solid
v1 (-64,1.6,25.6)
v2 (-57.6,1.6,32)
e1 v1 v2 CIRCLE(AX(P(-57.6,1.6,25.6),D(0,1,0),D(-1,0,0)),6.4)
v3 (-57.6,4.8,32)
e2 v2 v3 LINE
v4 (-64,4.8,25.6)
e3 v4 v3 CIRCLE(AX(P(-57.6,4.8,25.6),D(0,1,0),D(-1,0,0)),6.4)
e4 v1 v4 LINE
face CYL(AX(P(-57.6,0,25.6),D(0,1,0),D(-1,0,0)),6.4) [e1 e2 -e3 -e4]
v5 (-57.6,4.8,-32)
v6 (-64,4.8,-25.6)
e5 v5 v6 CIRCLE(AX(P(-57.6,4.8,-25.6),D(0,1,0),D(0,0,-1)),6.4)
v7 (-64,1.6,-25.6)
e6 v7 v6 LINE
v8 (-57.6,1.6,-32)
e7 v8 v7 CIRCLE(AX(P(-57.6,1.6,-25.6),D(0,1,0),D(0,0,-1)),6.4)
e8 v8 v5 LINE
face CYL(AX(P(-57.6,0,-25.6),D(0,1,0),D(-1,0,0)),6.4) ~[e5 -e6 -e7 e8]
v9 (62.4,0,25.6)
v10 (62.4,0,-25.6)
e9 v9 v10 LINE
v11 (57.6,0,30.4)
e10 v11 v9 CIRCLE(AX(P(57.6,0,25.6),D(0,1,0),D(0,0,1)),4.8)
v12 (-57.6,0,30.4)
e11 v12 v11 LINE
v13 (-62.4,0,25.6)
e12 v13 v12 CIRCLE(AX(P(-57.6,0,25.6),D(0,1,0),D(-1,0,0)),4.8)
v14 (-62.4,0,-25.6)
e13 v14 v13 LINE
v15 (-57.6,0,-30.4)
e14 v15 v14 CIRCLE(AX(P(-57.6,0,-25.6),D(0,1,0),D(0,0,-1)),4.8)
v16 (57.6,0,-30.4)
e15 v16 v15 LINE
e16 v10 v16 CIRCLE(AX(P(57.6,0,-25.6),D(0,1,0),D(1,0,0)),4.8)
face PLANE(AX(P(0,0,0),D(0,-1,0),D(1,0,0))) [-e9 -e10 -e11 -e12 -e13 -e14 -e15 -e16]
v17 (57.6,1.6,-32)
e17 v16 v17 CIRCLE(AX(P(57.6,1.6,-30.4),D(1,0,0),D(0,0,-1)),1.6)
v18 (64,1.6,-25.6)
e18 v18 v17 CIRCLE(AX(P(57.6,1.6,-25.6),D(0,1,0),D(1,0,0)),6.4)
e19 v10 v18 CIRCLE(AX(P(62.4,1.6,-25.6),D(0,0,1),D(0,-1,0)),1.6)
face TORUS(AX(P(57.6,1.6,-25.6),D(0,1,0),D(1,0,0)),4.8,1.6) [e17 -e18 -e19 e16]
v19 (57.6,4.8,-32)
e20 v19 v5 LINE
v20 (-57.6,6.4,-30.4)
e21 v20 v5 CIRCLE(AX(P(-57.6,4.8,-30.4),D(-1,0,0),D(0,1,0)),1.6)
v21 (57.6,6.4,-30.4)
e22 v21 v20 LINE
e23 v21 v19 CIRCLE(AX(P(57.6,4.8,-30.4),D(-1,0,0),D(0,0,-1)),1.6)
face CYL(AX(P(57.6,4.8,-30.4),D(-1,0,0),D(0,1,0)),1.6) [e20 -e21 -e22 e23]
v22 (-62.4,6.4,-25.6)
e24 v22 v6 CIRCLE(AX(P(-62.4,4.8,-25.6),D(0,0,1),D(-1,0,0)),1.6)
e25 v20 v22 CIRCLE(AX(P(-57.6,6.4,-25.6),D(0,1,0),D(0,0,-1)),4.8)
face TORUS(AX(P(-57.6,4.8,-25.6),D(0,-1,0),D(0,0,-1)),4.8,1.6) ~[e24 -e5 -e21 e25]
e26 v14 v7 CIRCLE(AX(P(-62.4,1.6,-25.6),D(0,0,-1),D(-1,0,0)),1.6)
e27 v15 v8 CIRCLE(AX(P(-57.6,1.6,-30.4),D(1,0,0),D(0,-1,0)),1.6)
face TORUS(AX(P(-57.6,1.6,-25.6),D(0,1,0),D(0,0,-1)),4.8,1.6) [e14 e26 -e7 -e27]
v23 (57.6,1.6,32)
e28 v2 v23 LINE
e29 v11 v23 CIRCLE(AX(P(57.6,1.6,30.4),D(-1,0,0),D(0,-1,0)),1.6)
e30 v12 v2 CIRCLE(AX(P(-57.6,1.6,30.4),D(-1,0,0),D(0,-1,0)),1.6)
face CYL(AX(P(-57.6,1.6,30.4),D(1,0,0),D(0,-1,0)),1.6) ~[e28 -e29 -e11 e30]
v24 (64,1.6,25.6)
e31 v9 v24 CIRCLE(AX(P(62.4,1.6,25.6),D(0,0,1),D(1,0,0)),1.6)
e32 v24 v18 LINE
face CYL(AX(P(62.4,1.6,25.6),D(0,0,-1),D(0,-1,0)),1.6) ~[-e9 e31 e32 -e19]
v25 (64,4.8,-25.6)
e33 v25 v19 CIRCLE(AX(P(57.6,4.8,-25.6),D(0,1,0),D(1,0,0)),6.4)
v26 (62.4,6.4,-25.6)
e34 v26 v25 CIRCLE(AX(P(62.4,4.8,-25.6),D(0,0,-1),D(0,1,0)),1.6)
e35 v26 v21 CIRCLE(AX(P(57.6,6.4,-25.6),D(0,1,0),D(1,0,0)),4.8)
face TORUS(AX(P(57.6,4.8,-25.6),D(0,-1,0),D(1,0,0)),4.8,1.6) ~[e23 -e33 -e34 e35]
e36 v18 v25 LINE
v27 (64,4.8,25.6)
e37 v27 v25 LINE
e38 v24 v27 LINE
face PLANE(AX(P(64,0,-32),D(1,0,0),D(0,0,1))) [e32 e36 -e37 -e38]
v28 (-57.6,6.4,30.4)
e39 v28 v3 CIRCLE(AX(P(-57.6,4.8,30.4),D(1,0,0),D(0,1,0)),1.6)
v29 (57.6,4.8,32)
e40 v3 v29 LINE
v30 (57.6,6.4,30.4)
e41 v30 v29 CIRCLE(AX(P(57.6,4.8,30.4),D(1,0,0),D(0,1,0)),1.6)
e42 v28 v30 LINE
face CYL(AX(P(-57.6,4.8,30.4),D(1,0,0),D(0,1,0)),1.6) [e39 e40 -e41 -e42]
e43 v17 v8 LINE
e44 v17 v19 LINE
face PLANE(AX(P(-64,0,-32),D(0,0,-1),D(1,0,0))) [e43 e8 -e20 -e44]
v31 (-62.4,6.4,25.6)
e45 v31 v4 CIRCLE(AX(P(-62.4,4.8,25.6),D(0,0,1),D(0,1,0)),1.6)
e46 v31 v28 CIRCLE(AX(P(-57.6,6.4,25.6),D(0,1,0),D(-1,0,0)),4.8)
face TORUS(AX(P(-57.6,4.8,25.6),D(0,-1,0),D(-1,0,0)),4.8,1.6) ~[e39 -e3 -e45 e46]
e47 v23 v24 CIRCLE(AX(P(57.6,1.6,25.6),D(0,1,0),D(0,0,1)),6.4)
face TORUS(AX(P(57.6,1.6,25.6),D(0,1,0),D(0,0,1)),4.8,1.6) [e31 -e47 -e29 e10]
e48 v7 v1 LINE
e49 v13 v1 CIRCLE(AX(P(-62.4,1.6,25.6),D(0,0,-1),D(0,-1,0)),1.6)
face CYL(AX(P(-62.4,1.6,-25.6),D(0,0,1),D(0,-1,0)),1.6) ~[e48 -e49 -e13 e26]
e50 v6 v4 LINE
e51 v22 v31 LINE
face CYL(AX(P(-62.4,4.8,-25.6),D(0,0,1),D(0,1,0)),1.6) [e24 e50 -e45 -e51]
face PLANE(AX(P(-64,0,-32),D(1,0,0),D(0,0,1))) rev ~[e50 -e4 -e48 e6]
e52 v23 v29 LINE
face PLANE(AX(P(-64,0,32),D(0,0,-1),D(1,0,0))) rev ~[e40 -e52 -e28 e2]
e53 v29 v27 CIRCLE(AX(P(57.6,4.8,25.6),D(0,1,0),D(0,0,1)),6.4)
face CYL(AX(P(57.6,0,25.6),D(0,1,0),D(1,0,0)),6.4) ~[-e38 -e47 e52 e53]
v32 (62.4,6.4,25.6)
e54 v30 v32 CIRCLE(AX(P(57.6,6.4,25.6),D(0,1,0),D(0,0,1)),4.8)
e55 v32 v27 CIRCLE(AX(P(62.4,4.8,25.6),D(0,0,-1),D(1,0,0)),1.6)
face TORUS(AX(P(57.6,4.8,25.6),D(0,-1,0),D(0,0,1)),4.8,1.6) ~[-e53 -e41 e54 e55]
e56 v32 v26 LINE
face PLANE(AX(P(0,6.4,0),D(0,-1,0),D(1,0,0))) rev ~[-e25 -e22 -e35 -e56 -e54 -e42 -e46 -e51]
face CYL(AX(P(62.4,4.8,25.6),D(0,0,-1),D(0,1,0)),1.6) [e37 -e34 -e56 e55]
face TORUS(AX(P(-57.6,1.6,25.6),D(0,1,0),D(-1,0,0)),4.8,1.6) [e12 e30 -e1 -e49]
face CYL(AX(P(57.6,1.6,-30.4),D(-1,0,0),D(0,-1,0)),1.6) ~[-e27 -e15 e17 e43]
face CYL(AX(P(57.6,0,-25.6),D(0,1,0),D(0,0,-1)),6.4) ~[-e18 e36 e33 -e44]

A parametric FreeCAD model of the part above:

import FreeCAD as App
import Part
import Sketcher
from FreeCAD import Vector
Q = App.Units.Quantity


def edges_at(feature, points):
    """Names of the edges that pass closest to the given points."""
    edges = feature.Shape.Edges
    near = lambda p: min(range(len(edges)), key=lambda i: edges[i].distToShape(Part.Vertex(*p))[0])
    return sorted({f"Edge{near(p) + 1}" for p in points})


def add_polygon(sketch, points):
    """Adds a closed chain of lines whose ends are joined by coincident constraints."""
    first, n = sketch.GeometryCount, len(points)
    for a, b in zip(points, points[1:] + points[:1]):
        sketch.addGeometry(Part.LineSegment(App.Vector(*a, 0), App.Vector(*b, 0)), False)
    for i in range(n):
        sketch.addConstraint(Sketcher.Constraint("Coincident", first + i, 2, first + (i + 1) % n, 1))

doc = App.newDocument("Part")
params = doc.addObject("Spreadsheet::Sheet", "Params")
for row, (alias, value) in enumerate([
    ("sketch1_width", "128 mm"),
    ("sketch1_height", "64 mm"),
    ("pad1_length", "6.4 mm"),
    ("fillet_radius", "6.4 mm"),
    ("fillet2_radius", "1.6 mm"),
], start=1):
    params.set(f"A{row}", alias)
    params.set(f"B{row}", "=" + value)
    params.setAlias(f"B{row}", alias)

body = doc.addObject("PartDesign::Body", "Body")

# Sketch on XZ plane
sketch1 = body.newObject("Sketcher::SketchObject", "Sketch")
sketch1.AttachmentSupport = (doc.getObject("XZ_Plane"), [""])
sketch1.MapMode = "FlatFace"
add_polygon(sketch1, [(-64, 32), (-64, -32), (64, -32), (64, 32)])  # lines 0-3
sketch1.addConstraint([
    Sketcher.Constraint("Vertical", 0),
    Sketcher.Constraint("Horizontal", 1),
    Sketcher.Constraint("Vertical", 2),
    Sketcher.Constraint("Horizontal", 3),
    Sketcher.Constraint("Symmetric", 0, 2, 2, 2, -1, 1),
    Sketcher.Constraint("DistanceX", 1, 1, 1, 2, Q("128 mm")),
    Sketcher.Constraint("DistanceY", 0, 2, 0, 1, Q("64 mm")),
])
sketch1.setExpression("Constraints[9]", "Params.sketch1_width")
sketch1.setExpression("Constraints[10]", "Params.sketch1_height")
pad1 = body.newObject("PartDesign::Pad", "Pad")
pad1.Profile = sketch1
pad1.setExpression("Length", "Params.pad1_length")
pad1.Reversed = True
doc.recompute()

fillet = body.newObject("PartDesign::Fillet", "Fillet")
fillet.Base = (pad1, edges_at(pad1, [
    (64, 3.2, 32),
    (64, 3.2, -32),
    (-64, 3.2, 32),
    (-64, 3.2, -32),
]))
fillet.setExpression("Radius", "Params.fillet_radius")
doc.recompute()

fillet2 = body.newObject("PartDesign::Fillet", "Fillet001")
fillet2.Base = (fillet, edges_at(fillet, [
    (0, 0, 32),
    (62.125, 0, 30.125),
    (-62.125, 0, 30.125),
    (64, 0, 0),
    (-64, 0, 0),
    (62.125, 0, -30.125),
    (-62.125, 0, -30.125),
    (0, 0, -32),
    (0, 6.4, 32),
    (62.125, 6.4, 30.125),
    (-62.125, 6.4, 30.125),
    (64, 6.4, 0),
    (-64, 6.4, 0),
    (62.125, 6.4, -30.125),
    (-62.125, 6.4, -30.125),
    (0, 6.4, -32),
]))
fillet2.setExpression("Radius", "Params.fillet2_radius")

doc.recompute()
